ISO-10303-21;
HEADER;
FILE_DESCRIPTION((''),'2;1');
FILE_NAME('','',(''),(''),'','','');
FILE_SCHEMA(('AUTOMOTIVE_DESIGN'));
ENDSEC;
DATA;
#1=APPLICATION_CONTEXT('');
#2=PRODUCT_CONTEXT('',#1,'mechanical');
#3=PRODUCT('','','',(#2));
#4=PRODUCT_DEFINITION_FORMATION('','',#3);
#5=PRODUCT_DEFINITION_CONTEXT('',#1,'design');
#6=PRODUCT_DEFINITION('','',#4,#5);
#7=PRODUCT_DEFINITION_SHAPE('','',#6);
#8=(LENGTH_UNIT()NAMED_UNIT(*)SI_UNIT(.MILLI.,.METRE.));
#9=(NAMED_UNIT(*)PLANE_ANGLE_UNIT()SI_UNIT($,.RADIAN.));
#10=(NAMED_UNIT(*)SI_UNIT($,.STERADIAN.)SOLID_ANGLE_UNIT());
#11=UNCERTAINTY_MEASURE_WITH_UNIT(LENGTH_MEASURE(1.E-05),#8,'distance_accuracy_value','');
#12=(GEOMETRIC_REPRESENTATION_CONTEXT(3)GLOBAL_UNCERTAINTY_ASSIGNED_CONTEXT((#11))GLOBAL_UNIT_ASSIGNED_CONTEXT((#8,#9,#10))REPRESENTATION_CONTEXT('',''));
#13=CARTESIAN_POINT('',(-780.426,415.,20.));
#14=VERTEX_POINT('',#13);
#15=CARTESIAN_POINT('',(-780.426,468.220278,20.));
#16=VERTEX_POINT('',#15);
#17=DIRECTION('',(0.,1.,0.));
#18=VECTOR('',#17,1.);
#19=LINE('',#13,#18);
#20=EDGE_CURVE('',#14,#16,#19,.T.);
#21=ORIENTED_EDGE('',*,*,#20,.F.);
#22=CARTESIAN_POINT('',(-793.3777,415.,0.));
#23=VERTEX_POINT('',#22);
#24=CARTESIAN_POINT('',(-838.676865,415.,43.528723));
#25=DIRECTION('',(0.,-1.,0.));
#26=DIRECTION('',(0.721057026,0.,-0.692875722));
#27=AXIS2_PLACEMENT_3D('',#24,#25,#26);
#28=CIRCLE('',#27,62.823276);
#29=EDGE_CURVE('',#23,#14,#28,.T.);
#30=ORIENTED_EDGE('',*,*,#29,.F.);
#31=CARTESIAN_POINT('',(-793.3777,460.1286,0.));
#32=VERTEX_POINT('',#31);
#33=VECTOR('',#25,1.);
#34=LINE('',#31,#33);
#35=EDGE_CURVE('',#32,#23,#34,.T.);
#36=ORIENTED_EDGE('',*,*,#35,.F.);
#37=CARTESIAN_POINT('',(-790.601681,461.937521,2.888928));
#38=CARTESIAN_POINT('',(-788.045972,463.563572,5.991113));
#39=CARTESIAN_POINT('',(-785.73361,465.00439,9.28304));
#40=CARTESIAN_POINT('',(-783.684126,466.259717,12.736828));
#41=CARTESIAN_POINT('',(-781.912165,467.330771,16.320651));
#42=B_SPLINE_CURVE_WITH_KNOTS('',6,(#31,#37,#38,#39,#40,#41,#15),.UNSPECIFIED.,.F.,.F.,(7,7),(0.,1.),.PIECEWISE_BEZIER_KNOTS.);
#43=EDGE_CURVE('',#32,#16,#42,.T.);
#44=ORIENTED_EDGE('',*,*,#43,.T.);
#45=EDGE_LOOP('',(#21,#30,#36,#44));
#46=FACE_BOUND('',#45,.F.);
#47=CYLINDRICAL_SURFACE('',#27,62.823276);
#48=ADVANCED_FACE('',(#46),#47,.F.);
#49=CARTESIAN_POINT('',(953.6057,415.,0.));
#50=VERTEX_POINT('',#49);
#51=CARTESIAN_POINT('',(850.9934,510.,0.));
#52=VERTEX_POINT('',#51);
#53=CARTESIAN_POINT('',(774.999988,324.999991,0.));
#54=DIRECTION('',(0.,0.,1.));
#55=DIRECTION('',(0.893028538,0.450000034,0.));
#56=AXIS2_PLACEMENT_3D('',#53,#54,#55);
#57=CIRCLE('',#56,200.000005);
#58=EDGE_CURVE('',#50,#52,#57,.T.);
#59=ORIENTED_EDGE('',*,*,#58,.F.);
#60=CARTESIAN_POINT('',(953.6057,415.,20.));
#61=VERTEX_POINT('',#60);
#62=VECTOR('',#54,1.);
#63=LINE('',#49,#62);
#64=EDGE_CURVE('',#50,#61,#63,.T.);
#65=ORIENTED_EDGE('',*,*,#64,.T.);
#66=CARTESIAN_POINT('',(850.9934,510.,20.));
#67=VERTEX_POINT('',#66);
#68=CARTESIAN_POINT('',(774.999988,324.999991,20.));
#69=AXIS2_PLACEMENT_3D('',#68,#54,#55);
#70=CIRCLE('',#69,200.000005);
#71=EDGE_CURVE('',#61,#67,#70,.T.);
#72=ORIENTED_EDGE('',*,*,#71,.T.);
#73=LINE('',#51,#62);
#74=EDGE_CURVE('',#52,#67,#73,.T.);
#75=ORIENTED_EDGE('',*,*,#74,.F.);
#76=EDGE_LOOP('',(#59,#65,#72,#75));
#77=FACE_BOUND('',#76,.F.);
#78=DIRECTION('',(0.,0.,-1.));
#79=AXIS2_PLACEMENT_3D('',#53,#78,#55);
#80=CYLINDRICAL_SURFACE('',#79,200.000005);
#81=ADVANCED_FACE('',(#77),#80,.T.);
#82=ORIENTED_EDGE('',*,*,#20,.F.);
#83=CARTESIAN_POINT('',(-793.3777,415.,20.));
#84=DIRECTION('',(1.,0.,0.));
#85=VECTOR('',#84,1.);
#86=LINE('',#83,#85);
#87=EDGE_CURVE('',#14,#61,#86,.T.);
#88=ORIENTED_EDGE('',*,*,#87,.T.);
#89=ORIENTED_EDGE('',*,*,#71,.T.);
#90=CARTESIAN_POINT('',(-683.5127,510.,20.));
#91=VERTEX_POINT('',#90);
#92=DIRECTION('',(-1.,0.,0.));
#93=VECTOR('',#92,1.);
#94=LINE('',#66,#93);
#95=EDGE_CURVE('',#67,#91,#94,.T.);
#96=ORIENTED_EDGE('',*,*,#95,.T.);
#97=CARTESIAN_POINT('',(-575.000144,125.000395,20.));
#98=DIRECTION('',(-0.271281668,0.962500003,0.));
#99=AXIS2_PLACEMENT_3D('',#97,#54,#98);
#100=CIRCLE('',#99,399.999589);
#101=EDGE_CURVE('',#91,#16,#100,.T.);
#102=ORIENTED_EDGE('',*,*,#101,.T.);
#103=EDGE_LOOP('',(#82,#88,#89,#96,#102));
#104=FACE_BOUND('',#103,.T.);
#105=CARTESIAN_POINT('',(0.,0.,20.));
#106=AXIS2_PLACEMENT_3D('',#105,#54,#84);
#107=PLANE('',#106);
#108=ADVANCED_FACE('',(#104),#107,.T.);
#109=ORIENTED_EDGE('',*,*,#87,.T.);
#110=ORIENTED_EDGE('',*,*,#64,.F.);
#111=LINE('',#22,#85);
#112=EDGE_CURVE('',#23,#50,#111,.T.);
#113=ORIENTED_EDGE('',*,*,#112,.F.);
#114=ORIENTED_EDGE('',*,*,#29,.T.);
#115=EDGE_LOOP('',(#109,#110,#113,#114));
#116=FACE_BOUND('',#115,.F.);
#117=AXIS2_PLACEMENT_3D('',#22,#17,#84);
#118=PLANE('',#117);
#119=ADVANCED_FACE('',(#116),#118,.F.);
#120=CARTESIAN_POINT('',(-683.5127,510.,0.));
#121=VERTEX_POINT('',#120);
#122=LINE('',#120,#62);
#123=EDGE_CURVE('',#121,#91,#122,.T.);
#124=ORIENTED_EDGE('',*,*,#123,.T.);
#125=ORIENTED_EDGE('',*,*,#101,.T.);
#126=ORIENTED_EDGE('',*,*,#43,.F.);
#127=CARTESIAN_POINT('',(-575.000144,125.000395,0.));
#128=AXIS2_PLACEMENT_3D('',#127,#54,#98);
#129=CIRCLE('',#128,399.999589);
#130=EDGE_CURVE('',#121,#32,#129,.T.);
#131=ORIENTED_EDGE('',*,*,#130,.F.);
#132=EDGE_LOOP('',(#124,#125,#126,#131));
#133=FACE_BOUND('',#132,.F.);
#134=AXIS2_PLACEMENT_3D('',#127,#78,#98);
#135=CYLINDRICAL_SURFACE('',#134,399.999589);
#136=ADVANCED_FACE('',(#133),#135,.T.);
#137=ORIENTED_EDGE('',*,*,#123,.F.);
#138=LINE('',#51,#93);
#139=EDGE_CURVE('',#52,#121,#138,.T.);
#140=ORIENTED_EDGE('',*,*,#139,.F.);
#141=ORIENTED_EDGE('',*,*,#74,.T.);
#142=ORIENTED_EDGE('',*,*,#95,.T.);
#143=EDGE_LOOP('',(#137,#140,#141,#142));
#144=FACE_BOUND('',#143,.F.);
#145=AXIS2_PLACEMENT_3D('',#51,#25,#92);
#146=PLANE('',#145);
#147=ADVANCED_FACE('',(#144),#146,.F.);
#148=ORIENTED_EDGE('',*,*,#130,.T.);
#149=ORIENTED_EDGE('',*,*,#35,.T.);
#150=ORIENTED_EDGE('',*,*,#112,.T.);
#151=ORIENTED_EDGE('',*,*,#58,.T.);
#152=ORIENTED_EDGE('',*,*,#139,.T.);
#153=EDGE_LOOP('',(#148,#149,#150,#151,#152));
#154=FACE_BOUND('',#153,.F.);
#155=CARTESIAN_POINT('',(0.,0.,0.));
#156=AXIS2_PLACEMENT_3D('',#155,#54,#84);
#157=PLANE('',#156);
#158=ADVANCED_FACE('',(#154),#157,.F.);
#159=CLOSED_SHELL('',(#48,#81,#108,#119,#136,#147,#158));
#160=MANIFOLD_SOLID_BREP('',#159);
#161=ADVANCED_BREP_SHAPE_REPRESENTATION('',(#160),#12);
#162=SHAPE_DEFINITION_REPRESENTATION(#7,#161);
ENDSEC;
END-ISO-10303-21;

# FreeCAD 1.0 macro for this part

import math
import FreeCAD as App
import Part
import Sketcher
from FreeCAD import Vector
Q = App.Units.Quantity

doc = App.newDocument("Part")
body = doc.addObject("PartDesign::Body", "Body")

# Sketch on XY plane
sketch1 = body.newObject("Sketcher::SketchObject", "Sketch")
sketch1.AttachmentSupport = (doc.getObject("XY_Plane"), [""])
sketch1.MapMode = "FlatFace"
sketch1.addGeometry([
    Part.LineSegment(Vector(-793.3777, 460.1286, 0), Vector(-793.3777, 415, 0)),  # 0
    Part.LineSegment(Vector(-793.3777, 415, 0), Vector(953.6057, 415, 0)),  # 1
    Part.ArcOfCircle(Part.Circle(Vector(775, 325, 0), Vector(0, 0, 1), 199.99999), math.radians(26.743685), math.radians(67.66836)),  # 2
    Part.LineSegment(Vector(850.9934, 510, 0), Vector(-683.5127, 510, 0)),  # 3
    Part.ArcOfCircle(Part.Circle(Vector(-575, 125, 0), Vector(0, 0, 1), 400.000008), math.radians(105.740552), math.radians(123.089214)),  # 4
], False)
sketch1.addConstraint([
    Sketcher.Constraint("Coincident", 0, 2, 1, 1),
    Sketcher.Constraint("Coincident", 1, 2, 2, 1),
    Sketcher.Constraint("Coincident", 2, 2, 3, 1),
    Sketcher.Constraint("Coincident", 3, 2, 4, 1),
    Sketcher.Constraint("Coincident", 4, 2, 0, 1),
    Sketcher.Constraint("Vertical", 0),
    Sketcher.Constraint("Horizontal", 1),
    Sketcher.Constraint("Horizontal", 3),
    Sketcher.Constraint("Radius", 2, Q("200 mm")),
    Sketcher.Constraint("Radius", 4, Q("400 mm")),
    Sketcher.Constraint("DistanceX", -1, 1, 2, 3, Q("775 mm")),
    Sketcher.Constraint("DistanceY", -1, 1, 2, 3, Q("325 mm")),
    Sketcher.Constraint("DistanceX", 4, 3, -1, 1, Q("575 mm")),
    Sketcher.Constraint("DistanceY", -1, 1, 4, 3, Q("125 mm")),
    Sketcher.Constraint("DistanceY", -1, 1, 0, 2, Q("415 mm")),
    Sketcher.Constraint("DistanceY", -1, 1, 2, 2, Q("510 mm")),
    Sketcher.Constraint("DistanceX", 1, 1, 1, 2, Q("1746.9834 mm")),
])
pad1 = body.newObject("PartDesign::Pad", "Pad")
pad1.Profile = sketch1
pad1.Length = 20

# Sketch on XZ plane
sketch2 = body.newObject("Sketcher::SketchObject", "Sketch001")
sketch2.AttachmentSupport = (doc.getObject("XZ_Plane"), [""])
sketch2.MapMode = "FlatFace"
sketch2.AttachmentOffset = App.Placement(Vector(0, 0, -415), App.Rotation())
sketch2.addGeometry([
    Part.LineSegment(Vector(-902.6552, 20, 0), Vector(-902.6552, 0, 0)),
    Part.LineSegment(Vector(-902.6552, 0, 0), Vector(-793.3777, 0, 0)),
    Part.ArcOfCircle(Part.Circle(Vector(-838.676865, 43.528723, 0), Vector(0, 0, 1), 62.823276), math.radians(-43.85818), math.radians(-21.994796)),
    Part.LineSegment(Vector(-780.426, 20, 0), Vector(-902.6552, 20, 0)),
], False)
sketch2.addConstraint([
    Sketcher.Constraint("Coincident", 0, 2, 1, 1),
    Sketcher.Constraint("Coincident", 1, 2, 2, 1),
    Sketcher.Constraint("Coincident", 2, 2, 3, 1),
    Sketcher.Constraint("Coincident", 3, 2, 0, 1),
    Sketcher.Constraint("Vertical", 0),
    Sketcher.Constraint("Horizontal", 1),
    Sketcher.Constraint("Horizontal", 3),
    Sketcher.Constraint("PointOnObject", 0, 2, -1),
    Sketcher.Constraint("DistanceY", 0, 2, 0, 1, Q("20 mm")),
    Sketcher.Constraint("DistanceX", 1, 1, 1, 2, Q("109.2775 mm")),
    Sketcher.Constraint("DistanceX", 3, 2, 3, 1, Q("122.2292 mm")),
    Sketcher.Constraint("Radius", 2, Q("62.8233 mm")),
    Sketcher.Constraint("DistanceX", 2, 2, -1, 1, Q("780.426 mm")),
])
pocket1 = body.newObject("PartDesign::Pocket", "Pocket")
pocket1.Profile = sketch2
pocket1.Type = "ThroughAll"

doc.recompute()
